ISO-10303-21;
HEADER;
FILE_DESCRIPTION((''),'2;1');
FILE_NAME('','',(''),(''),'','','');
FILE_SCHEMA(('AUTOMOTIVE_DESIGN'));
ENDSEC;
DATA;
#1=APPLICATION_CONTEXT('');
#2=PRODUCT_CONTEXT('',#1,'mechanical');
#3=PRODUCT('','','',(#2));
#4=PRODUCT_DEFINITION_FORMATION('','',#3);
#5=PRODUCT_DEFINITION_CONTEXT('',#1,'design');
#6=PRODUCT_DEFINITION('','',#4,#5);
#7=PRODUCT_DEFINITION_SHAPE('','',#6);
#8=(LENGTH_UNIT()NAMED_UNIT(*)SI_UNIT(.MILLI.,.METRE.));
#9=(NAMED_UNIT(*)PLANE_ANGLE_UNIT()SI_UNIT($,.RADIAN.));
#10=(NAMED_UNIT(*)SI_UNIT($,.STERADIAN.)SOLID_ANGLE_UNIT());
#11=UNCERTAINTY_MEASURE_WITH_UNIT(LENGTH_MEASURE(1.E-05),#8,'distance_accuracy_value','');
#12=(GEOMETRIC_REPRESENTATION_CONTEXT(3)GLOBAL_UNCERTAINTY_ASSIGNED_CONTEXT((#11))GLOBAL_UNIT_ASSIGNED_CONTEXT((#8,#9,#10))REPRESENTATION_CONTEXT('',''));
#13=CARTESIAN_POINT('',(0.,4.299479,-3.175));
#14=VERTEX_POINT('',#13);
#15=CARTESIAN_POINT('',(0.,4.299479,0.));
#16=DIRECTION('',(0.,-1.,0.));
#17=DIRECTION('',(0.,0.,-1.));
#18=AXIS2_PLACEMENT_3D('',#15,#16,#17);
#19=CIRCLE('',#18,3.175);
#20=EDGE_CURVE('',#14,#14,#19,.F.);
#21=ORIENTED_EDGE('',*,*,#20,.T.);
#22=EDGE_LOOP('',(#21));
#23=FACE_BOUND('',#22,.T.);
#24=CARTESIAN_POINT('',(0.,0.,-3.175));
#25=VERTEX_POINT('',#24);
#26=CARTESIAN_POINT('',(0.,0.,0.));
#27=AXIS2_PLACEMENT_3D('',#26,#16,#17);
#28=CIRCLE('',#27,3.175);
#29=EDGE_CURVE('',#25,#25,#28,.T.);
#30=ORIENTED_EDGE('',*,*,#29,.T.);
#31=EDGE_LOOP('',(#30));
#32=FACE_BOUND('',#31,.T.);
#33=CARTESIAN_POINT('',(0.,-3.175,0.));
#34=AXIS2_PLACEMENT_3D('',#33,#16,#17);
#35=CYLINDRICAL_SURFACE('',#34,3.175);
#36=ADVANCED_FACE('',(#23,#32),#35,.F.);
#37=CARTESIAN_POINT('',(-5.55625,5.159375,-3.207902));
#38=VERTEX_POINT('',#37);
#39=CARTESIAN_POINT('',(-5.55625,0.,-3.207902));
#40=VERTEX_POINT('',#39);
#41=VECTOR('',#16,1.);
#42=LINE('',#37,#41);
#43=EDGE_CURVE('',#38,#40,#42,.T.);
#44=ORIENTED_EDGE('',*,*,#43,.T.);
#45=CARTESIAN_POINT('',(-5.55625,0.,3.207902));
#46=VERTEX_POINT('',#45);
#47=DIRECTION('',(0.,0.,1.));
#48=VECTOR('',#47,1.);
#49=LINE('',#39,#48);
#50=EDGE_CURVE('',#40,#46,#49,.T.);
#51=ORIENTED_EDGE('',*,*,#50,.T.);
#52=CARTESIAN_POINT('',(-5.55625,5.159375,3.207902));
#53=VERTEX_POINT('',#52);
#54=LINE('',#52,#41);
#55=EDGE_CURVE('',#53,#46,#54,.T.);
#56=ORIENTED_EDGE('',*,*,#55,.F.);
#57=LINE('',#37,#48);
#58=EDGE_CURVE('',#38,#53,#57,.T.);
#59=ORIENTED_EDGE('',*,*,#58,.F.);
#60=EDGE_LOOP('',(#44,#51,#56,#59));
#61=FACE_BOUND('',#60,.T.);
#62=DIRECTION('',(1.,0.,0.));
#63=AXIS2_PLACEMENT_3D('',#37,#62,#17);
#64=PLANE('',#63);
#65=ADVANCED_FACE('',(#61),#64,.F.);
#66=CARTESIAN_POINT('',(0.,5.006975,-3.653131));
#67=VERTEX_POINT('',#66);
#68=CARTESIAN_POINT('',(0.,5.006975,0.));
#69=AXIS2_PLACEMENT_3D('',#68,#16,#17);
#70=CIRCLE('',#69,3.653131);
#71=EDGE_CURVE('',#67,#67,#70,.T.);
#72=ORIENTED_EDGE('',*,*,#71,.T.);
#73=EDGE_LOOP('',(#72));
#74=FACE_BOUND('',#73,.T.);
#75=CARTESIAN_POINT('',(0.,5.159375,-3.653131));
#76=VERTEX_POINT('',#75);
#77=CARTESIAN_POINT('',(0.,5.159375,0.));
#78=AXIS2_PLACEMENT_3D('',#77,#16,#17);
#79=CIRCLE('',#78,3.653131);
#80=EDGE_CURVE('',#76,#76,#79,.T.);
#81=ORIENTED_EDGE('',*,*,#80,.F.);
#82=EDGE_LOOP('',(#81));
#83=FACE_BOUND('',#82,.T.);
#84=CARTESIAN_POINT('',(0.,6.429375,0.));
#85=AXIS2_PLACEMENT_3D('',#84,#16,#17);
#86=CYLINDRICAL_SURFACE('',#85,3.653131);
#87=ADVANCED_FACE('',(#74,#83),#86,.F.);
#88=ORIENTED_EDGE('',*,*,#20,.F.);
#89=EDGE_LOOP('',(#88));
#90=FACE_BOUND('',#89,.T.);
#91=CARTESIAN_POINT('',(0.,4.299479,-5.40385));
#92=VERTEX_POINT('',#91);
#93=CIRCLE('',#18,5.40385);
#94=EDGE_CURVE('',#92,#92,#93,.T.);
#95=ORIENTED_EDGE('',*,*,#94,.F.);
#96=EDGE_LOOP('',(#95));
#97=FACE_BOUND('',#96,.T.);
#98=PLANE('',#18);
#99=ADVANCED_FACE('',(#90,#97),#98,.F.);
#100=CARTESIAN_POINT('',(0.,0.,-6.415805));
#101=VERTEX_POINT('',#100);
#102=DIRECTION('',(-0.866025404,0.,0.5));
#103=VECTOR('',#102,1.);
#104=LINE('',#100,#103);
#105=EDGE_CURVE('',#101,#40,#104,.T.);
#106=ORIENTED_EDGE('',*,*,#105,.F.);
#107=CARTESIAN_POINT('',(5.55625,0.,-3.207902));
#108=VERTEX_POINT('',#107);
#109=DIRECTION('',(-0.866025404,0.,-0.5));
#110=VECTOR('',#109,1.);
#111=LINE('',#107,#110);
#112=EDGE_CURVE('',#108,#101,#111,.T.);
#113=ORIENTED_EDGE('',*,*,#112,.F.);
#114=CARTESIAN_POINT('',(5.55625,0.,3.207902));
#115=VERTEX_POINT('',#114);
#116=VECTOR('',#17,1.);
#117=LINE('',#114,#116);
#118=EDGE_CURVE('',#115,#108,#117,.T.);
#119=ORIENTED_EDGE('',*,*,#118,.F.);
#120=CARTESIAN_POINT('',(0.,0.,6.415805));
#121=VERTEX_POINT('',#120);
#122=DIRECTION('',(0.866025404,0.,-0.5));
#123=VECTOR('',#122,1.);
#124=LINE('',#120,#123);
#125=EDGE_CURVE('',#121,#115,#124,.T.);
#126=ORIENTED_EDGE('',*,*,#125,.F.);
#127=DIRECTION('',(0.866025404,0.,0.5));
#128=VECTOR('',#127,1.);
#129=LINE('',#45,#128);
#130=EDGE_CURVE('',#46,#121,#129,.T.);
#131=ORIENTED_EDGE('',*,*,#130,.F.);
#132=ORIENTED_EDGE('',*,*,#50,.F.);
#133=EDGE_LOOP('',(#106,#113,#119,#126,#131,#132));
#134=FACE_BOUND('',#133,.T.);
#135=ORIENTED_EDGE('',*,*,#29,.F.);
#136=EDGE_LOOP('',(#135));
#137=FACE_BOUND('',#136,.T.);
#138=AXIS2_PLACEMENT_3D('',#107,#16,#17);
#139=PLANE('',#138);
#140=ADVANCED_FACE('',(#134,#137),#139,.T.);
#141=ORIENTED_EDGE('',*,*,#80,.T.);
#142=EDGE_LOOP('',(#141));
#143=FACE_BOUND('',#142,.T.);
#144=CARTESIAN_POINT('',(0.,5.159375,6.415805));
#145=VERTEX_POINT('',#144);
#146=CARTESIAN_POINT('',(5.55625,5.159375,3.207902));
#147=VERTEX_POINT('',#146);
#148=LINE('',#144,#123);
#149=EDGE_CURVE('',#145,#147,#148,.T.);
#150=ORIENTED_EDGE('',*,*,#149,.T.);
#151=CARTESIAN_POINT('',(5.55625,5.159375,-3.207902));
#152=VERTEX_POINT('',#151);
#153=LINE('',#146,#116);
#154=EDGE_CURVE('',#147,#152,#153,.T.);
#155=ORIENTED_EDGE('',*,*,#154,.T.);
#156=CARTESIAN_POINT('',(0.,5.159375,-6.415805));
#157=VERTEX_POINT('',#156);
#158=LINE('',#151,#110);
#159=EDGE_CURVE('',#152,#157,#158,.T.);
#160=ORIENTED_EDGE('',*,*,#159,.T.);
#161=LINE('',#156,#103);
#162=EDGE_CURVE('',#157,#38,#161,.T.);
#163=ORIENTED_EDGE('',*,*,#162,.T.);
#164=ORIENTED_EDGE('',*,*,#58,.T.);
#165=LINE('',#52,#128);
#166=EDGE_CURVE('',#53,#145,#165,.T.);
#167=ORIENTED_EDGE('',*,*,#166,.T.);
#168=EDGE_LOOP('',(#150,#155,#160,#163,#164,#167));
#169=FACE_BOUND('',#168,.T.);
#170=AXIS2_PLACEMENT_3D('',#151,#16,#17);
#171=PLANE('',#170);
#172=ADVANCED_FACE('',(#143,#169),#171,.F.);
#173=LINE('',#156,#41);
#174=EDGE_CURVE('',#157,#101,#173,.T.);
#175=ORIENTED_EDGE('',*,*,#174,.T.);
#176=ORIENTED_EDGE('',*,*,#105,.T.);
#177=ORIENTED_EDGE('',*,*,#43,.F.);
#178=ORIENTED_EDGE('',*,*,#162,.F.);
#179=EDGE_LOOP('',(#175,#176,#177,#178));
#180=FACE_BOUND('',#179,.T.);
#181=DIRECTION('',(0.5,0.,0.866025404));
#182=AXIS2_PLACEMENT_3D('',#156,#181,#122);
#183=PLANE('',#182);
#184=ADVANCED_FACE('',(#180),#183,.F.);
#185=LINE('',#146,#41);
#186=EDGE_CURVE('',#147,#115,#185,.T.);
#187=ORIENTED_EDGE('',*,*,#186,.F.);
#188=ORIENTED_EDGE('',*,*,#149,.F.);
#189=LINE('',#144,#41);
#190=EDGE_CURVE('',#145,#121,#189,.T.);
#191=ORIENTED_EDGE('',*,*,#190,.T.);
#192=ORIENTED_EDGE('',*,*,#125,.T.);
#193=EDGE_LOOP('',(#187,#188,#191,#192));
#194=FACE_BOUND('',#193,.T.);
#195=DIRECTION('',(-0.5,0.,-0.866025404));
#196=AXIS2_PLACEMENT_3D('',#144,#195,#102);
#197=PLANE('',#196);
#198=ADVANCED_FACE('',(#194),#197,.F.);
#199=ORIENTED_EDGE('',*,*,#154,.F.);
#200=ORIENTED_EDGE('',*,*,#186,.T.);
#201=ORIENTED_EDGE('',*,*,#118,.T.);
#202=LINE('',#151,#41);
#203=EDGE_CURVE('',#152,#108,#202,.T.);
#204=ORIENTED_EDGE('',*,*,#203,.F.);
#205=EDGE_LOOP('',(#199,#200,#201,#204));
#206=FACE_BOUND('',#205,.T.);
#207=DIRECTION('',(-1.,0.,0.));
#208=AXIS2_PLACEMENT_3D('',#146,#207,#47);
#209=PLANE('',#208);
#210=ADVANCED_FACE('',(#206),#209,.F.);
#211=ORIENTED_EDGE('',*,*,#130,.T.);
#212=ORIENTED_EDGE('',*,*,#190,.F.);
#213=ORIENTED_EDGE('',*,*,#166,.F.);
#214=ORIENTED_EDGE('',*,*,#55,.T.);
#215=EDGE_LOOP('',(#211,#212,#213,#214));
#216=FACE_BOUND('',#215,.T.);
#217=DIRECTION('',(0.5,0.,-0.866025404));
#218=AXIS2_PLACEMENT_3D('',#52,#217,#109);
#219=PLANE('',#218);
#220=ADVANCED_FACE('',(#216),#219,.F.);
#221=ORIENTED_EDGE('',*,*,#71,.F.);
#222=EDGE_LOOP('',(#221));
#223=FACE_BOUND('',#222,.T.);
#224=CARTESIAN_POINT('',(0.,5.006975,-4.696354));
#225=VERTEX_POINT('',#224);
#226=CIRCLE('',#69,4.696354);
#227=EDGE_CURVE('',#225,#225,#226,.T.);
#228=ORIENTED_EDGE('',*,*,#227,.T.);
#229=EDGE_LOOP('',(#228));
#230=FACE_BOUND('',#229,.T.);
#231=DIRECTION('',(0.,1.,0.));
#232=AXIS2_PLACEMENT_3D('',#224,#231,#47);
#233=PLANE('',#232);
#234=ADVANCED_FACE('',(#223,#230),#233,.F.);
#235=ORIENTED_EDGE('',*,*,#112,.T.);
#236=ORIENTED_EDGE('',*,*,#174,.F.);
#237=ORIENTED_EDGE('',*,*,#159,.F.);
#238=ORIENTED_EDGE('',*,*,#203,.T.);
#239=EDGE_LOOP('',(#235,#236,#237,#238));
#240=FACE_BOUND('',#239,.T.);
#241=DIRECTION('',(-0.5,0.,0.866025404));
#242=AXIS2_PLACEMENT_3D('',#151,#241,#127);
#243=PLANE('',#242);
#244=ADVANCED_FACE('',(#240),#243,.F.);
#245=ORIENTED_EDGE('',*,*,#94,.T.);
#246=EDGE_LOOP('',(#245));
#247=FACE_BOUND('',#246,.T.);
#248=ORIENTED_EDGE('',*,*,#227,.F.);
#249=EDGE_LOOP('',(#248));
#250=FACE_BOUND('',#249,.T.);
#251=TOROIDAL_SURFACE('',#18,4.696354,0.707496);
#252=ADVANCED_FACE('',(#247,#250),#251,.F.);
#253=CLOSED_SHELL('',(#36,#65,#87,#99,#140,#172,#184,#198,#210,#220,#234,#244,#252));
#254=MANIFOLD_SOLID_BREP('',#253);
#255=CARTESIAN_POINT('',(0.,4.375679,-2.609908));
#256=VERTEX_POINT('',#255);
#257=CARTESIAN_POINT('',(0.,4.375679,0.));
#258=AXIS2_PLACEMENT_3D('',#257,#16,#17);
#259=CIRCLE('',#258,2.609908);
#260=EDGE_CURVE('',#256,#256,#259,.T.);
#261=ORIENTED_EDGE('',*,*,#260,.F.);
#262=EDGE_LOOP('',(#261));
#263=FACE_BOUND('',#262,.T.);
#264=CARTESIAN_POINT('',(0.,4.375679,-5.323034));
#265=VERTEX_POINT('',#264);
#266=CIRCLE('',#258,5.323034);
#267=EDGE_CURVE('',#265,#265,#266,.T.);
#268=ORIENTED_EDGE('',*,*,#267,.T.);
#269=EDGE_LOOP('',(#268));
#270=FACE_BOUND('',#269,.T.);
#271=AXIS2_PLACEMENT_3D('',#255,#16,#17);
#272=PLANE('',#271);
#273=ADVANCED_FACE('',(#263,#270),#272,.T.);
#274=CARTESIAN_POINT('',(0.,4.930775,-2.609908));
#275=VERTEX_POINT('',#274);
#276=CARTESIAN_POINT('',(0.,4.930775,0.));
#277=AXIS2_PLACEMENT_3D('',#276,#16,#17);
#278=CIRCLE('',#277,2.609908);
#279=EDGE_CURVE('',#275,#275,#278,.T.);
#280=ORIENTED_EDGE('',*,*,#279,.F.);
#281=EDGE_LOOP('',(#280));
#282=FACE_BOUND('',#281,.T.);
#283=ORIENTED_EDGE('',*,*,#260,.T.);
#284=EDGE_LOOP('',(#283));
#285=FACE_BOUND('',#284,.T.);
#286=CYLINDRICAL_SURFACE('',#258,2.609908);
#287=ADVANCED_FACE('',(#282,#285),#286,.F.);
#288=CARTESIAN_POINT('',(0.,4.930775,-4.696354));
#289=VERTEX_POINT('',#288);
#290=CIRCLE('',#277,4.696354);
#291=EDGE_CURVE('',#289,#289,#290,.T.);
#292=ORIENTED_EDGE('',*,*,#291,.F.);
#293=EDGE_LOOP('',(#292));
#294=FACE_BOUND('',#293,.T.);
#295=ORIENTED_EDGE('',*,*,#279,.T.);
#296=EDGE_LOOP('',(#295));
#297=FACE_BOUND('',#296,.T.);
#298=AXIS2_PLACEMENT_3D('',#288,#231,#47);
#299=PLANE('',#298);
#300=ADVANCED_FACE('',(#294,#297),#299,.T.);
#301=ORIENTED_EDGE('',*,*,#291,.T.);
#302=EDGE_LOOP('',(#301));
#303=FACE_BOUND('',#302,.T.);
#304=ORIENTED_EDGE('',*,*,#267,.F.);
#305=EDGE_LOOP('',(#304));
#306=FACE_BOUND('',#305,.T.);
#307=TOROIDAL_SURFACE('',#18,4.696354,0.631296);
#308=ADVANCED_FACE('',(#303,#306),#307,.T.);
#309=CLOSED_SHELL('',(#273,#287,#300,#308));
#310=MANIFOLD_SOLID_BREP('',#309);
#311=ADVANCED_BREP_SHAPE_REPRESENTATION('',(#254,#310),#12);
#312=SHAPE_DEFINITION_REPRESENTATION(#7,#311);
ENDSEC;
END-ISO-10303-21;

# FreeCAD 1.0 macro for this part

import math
import FreeCAD as App
import Part
import Sketcher
Q = App.Units.Quantity

doc = App.newDocument("Part")
body = doc.addObject("PartDesign::Body", "Body")

# Sketch on XZ plane
sketch1 = doc.addObject("Sketcher::SketchObject", "Sketch")
body.addObject(sketch1)
sketch1.AttachmentSupport = (doc.XZ_Plane, [""])
sketch1.MapMode = "FlatFace"
sketch1.addGeometry([
    Part.LineSegment(App.Vector(0, -6, 0), App.Vector(-6, -3, 0)),  # 0
    Part.LineSegment(App.Vector(-6, -3, 0), App.Vector(-6, 3, 0)),  # 1
    Part.LineSegment(App.Vector(-6, 3, 0), App.Vector(0, 6, 0)),  # 2
    Part.LineSegment(App.Vector(0, 6, 0), App.Vector(6, 3, 0)),  # 3
    Part.LineSegment(App.Vector(6, 3, 0), App.Vector(6, -3, 0)),  # 4
    Part.LineSegment(App.Vector(6, -3, 0), App.Vector(0, -6, 0)),  # 5
], False)
sketch1.addConstraint([
    Sketcher.Constraint("Coincident", 0, 2, 1, 1),
    Sketcher.Constraint("Coincident", 1, 2, 2, 1),
    Sketcher.Constraint("Coincident", 2, 2, 3, 1),
    Sketcher.Constraint("Coincident", 3, 2, 4, 1),
    Sketcher.Constraint("Coincident", 4, 2, 5, 1),
    Sketcher.Constraint("Coincident", 5, 2, 0, 1),
    Sketcher.Constraint("Vertical", 1),
    Sketcher.Constraint("Vertical", 4),
    Sketcher.Constraint("Symmetric", 0, 2, 3, 2, -1, 1),
    Sketcher.Constraint("Symmetric", 2, 2, 5, 2, -1, 1),
    Sketcher.Constraint("PointOnObject", 2, 2, -2),
    Sketcher.Constraint("Parallel", 2, 5),
    Sketcher.Constraint("Horizontal", 1, 2, 3, 2),
    Sketcher.Constraint("Angle", 0, Q("150 deg")),
    Sketcher.Constraint("DistanceX", 0, 2, -1, 1, Q("0.21875 in")),
    Sketcher.Constraint("DistanceY", 1, 1, 1, 2, Q("6.415805 mm")),
])
pad1 = doc.addObject("PartDesign::Pad", "Pad")
body.addObject(pad1)
pad1.Profile = sketch1
pad1.Length = Q("0.203125 in")
pad1.Reversed = True

# Sketch on YZ plane
sketch2 = doc.addObject("Sketcher::SketchObject", "Sketch001")
body.addObject(sketch2)
sketch2.AttachmentSupport = (doc.YZ_Plane, [""])
sketch2.MapMode = "FlatFace"
sketch2.addGeometry([
    Part.LineSegment(App.Vector(5.2, -3.2, 0), App.Vector(5.2, 0, 0)),  # 0
    Part.LineSegment(App.Vector(5.2, 0, 0), App.Vector(0, 0, 0)),  # 1
    Part.LineSegment(App.Vector(0, 0, 0), App.Vector(0, -3.2, 0)),  # 2
    Part.LineSegment(App.Vector(0, -3.2, 0), App.Vector(0.3, -2.6, 0)),  # 3
    Part.LineSegment(App.Vector(0.3, -2.6, 0), App.Vector(4.9, -2.6, 0)),  # 4
    Part.LineSegment(App.Vector(4.9, -2.6, 0), App.Vector(5.2, -3.2, 0)),  # 5
], False)
sketch2.addConstraint([
    Sketcher.Constraint("Coincident", 0, 2, 1, 1),
    Sketcher.Constraint("Coincident", 1, 2, 2, 1),
    Sketcher.Constraint("Coincident", 2, 2, 3, 1),
    Sketcher.Constraint("Coincident", 3, 2, 4, 1),
    Sketcher.Constraint("Coincident", 4, 2, 5, 1),
    Sketcher.Constraint("Coincident", 5, 2, 0, 1),
    Sketcher.Constraint("Vertical", 0),
    Sketcher.Constraint("Horizontal", 1),
    Sketcher.Constraint("Vertical", 2),
    Sketcher.Constraint("Horizontal", 4),
    Sketcher.Constraint("Coincident", 1, 2, -1, 1),
    Sketcher.Constraint("Horizontal", 2, 2, 5, 2),
    Sketcher.Constraint("Equal", 3, 5),
    Sketcher.Constraint("Angle", 3, Q("65 deg")),
    Sketcher.Constraint("DistanceX", 1, 2, 1, 1, Q("0.203125 in")),
    Sketcher.Constraint("DistanceY", 0, 1, 0, 2, Q("0.125 in")),
    Sketcher.Constraint("DistanceX", 4, 1, 4, 2, Q("4.632362 mm")),
])
groove = doc.addObject("PartDesign::Groove", "Groove")
body.addObject(groove)
groove.Profile = sketch2
groove.ReferenceAxis = (sketch2, ["H_Axis"])
groove.Angle = 360
body2 = doc.addObject("PartDesign::Body", "Body001")

# Sketch on YZ plane
sketch3 = doc.addObject("Sketcher::SketchObject", "Sketch002")
body2.addObject(sketch3)
sketch3.AttachmentSupport = (doc.getObject("YZ_Plane001"), [""])
sketch3.MapMode = "FlatFace"
sketch3.addGeometry([
    Part.LineSegment(App.Vector(5.2, 0, 0), App.Vector(0, 0, 0)),
    Part.LineSegment(App.Vector(0, 0, 0), App.Vector(0, -3.2, 0)),
    Part.LineSegment(App.Vector(0, -3.2, 0), App.Vector(5.2, -3.2, 0)),
    Part.LineSegment(App.Vector(5.2, -3.2, 0), App.Vector(5.2, 0, 0)),
], False)
sketch3.addConstraint([
    Sketcher.Constraint("Coincident", 0, 2, 1, 1),
    Sketcher.Constraint("Coincident", 1, 2, 2, 1),
    Sketcher.Constraint("Coincident", 2, 2, 3, 1),
    Sketcher.Constraint("Coincident", 3, 2, 0, 1),
    Sketcher.Constraint("Horizontal", 0),
    Sketcher.Constraint("Vertical", 1),
    Sketcher.Constraint("Horizontal", 2),
    Sketcher.Constraint("Vertical", 3),
    Sketcher.Constraint("Coincident", 0, 2, -1, 1),
    Sketcher.Constraint("DistanceX", 0, 2, 0, 1, Q("0.203125 in")),
    Sketcher.Constraint("DistanceY", 1, 2, 1, 1, Q("0.125 in")),
])
revolution = doc.addObject("PartDesign::Revolution", "Revolution")
body2.addObject(revolution)
revolution.Profile = sketch3
revolution.ReferenceAxis = (sketch3, ["H_Axis"])
revolution.Angle = 360
doc.recompute()

boolean = doc.addObject("PartDesign::Boolean", "Boolean")
body.addObject(boolean)
boolean.Type = "Cut"
boolean.addObjects([body2])

# Sketch on YZ plane
sketch4 = doc.addObject("Sketcher::SketchObject", "Sketch003")
body.addObject(sketch4)
sketch4.AttachmentSupport = (doc.YZ_Plane, [""])
sketch4.MapMode = "FlatFace"
sketch4.addGeometry([
    Part.LineSegment(App.Vector(4.3, 0, 0), App.Vector(4.3, -5.4, 0)),  # 0
    Part.ArcOfCircle(Part.Circle(App.Vector(4.3, -4.7, 0), App.Vector(0, 0, 1), 0.7), math.radians(-90), math.radians(0)),  # 1
    Part.LineSegment(App.Vector(5, -4.7, 0), App.Vector(5, -3.7, 0)),  # 2
    Part.LineSegment(App.Vector(5, -3.7, 0), App.Vector(6.4, -3.7, 0)),  # 3
    Part.LineSegment(App.Vector(6.4, -3.7, 0), App.Vector(6.4, 0, 0)),  # 4
    Part.LineSegment(App.Vector(6.4, 0, 0), App.Vector(4.3, 0, 0)),  # 5
], False)
sketch4.addConstraint([
    Sketcher.Constraint("Coincident", 0, 2, 1, 1),
    Sketcher.Constraint("Tangent", 1, 2, 2, 1),
    Sketcher.Constraint("Coincident", 2, 2, 3, 1),
    Sketcher.Constraint("Coincident", 3, 2, 4, 1),
    Sketcher.Constraint("Coincident", 4, 2, 5, 1),
    Sketcher.Constraint("Coincident", 5, 2, 0, 1),
    Sketcher.Constraint("Vertical", 0),
    Sketcher.Constraint("Vertical", 2),
    Sketcher.Constraint("Horizontal", 3),
    Sketcher.Constraint("Vertical", 4),
    Sketcher.Constraint("Horizontal", 5),
    Sketcher.Constraint("PointOnObject", 4, 2, -1),
    Sketcher.Constraint("Vertical", 1, 3, 0, 2),
    Sketcher.Constraint("DistanceX", 3, 1, 3, 2, Q("0.056 in")),
    Sketcher.Constraint("Radius", 1, Q("0.707496 mm")),
    Sketcher.Constraint("DistanceY", 0, 2, 0, 1, Q("5.40385 mm")),
    Sketcher.Constraint("DistanceY", 4, 1, 4, 2, Q("3.653131 mm")),
    Sketcher.Constraint("DistanceX", -1, 1, 1, 3, Q("4.299479 mm")),
])
groove2 = doc.addObject("PartDesign::Groove", "Groove001")
body.addObject(groove2)
groove2.Profile = sketch4
groove2.ReferenceAxis = (sketch4, ["H_Axis"])
groove2.Angle = 360
body3 = doc.addObject("PartDesign::Body", "Body002")

# Sketch on YZ plane
sketch5 = doc.addObject("Sketcher::SketchObject", "Sketch004")
body3.addObject(sketch5)
sketch5.AttachmentSupport = (doc.getObject("YZ_Plane002"), [""])
sketch5.MapMode = "FlatFace"
sketch5.addGeometry([
    Part.LineSegment(App.Vector(4.4, -2.6, 0), App.Vector(4.4, -5.3, 0)),
    Part.ArcOfCircle(Part.Circle(App.Vector(4.3, -4.7, 0), App.Vector(0, 0, 1), 0.6), math.radians(-83), math.radians(0)),
    Part.LineSegment(App.Vector(4.9, -4.7, 0), App.Vector(4.9, -2.6, 0)),
    Part.LineSegment(App.Vector(4.9, -2.6, 0), App.Vector(4.4, -2.6, 0)),
], False)
sketch5.addConstraint([
    Sketcher.Constraint("Coincident", 0, 2, 1, 1),
    Sketcher.Constraint("Tangent", 1, 2, 2, 1),
    Sketcher.Constraint("Coincident", 2, 2, 3, 1),
    Sketcher.Constraint("Coincident", 3, 2, 0, 1),
    Sketcher.Constraint("Vertical", 0),
    Sketcher.Constraint("Vertical", 2),
    Sketcher.Constraint("Horizontal", 3),
    Sketcher.Constraint("DistanceX", 1, 3, 0, 2, Q("0.003 in")),
    Sketcher.Constraint("Radius", 1, Q("0.631296 mm")),
    Sketcher.Constraint("DistanceY", 0, 2, 0, 1, Q("2.713126 mm")),
    Sketcher.Constraint("DistanceX", -1, 1, 1, 3, Q("4.299479 mm")),
    Sketcher.Constraint("DistanceY", 2, 2, -1, 1, Q("2.609908 mm")),
])
revolution2 = doc.addObject("PartDesign::Revolution", "Revolution001")
body3.addObject(revolution2)
revolution2.Profile = sketch5
revolution2.ReferenceAxis = (sketch5, ["H_Axis"])
revolution2.Angle = 360

doc.recompute()
